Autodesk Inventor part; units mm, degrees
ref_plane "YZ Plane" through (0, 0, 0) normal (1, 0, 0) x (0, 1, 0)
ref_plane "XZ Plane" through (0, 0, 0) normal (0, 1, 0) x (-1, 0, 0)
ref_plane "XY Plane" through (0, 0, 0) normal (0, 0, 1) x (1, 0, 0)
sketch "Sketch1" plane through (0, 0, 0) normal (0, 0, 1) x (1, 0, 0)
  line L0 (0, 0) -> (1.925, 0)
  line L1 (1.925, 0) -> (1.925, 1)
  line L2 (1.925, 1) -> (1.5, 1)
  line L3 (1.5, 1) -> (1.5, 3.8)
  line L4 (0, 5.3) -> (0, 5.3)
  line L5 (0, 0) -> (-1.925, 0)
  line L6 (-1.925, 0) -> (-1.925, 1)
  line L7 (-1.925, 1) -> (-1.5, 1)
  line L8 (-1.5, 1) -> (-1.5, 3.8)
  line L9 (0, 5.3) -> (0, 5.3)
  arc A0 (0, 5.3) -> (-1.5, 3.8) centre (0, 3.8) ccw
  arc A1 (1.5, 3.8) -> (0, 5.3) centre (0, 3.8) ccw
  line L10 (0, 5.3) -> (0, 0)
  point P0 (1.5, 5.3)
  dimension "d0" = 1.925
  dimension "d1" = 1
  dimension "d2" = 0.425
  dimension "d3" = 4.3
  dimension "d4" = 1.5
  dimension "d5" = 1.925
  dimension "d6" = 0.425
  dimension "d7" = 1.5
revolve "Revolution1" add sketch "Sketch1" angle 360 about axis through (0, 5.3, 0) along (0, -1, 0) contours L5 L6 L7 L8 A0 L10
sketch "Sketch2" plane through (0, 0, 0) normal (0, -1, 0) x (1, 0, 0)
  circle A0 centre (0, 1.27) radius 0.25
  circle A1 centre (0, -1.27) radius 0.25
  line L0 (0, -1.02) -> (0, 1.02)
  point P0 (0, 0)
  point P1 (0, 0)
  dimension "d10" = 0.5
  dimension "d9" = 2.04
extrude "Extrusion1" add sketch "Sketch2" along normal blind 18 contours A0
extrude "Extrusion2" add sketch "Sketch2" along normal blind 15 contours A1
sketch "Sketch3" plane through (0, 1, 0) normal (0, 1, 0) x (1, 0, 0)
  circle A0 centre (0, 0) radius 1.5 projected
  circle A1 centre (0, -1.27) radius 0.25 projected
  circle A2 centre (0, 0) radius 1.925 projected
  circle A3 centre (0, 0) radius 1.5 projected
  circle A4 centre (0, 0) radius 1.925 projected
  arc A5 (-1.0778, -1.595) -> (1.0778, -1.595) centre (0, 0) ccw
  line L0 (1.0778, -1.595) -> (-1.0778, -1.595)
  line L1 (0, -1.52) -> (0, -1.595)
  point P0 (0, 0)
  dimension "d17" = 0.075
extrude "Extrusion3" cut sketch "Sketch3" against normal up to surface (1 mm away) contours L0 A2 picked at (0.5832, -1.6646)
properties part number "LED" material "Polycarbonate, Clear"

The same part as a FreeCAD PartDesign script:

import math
import FreeCAD as App
import Part
import Sketcher
Q = App.Units.Quantity

doc = App.newDocument("Part")
params = doc.addObject("Spreadsheet::Sheet", "Params")
for row, (alias, value) in enumerate([
    ("sketch1_radius", "1.5 mm"),
    ("sketch1_height", "1 mm"),
    ("revolution_angle", "360 deg"),
    ("sketch2_diameter", "0.5 mm"),
    ("pad1_length", "18 mm"),
    ("sketch3_diameter", "0.5 mm"),
    ("pad2_length", "15 mm"),
    ("pocket1_length", "1 mm"),
], start=1):
    params.set(f"A{row}", alias)
    params.set(f"B{row}", "=" + value)
    params.setAlias(f"B{row}", alias)

body = doc.addObject("PartDesign::Body", "Body")

# Sketch on XY plane
sketch1 = doc.addObject("Sketcher::SketchObject", "Sketch")
body.addObject(sketch1)
sketch1.AttachmentSupport = (doc.XY_Plane, [""])
sketch1.MapMode = "FlatFace"
sketch1.addGeometry([
    Part.LineSegment(App.Vector(-1.925, 0, 0), App.Vector(0, 0, 0)),  # 0
    Part.LineSegment(App.Vector(0, 0, 0), App.Vector(0, 5.3, 0)),  # 1
    Part.ArcOfCircle(Part.Circle(App.Vector(0, 3.8, 0), App.Vector(0, 0, 1), 1.5), math.radians(90), math.radians(180)),  # 2
    Part.LineSegment(App.Vector(-1.5, 3.8, 0), App.Vector(-1.5, 1, 0)),  # 3
    Part.LineSegment(App.Vector(-1.5, 1, 0), App.Vector(-1.925, 1, 0)),  # 4
    Part.LineSegment(App.Vector(-1.925, 1, 0), App.Vector(-1.925, 0, 0)),  # 5
], False)
sketch1.addConstraint([
    Sketcher.Constraint("Coincident", 0, 2, 1, 1),
    Sketcher.Constraint("Coincident", 1, 2, 2, 1),
    Sketcher.Constraint("Tangent", 2, 2, 3, 1),
    Sketcher.Constraint("Coincident", 3, 2, 4, 1),
    Sketcher.Constraint("Coincident", 4, 2, 5, 1),
    Sketcher.Constraint("Coincident", 5, 2, 0, 1),
    Sketcher.Constraint("Horizontal", 0),
    Sketcher.Constraint("Vertical", 1),
    Sketcher.Constraint("Vertical", 3),
    Sketcher.Constraint("Horizontal", 4),
    Sketcher.Constraint("Vertical", 5),
    Sketcher.Constraint("Coincident", 0, 2, -1, 1),
    Sketcher.Constraint("PointOnObject", 2, 3, -2),
    Sketcher.Constraint("Radius", 2, Q("1.5 mm")),
    Sketcher.Constraint("DistanceY", 5, 2, 5, 1, Q("1 mm")),
    Sketcher.Constraint("DistanceY", 3, 2, 1, 2, Q("4.3 mm")),
    Sketcher.Constraint("DistanceX", 0, 1, 0, 2, Q("1.925 mm")),
])
sketch1.setExpression("Constraints[13]", "Params.sketch1_radius")
sketch1.setExpression("Constraints[14]", "Params.sketch1_height")
revolution = doc.addObject("PartDesign::Revolution", "Revolution")
body.addObject(revolution)
revolution.Profile = sketch1
revolution.ReferenceAxis = (sketch1, ["V_Axis"])
revolution.setExpression("Angle", "Params.revolution_angle")

# Sketch on XZ plane
sketch2 = doc.addObject("Sketcher::SketchObject", "Sketch001")
body.addObject(sketch2)
sketch2.AttachmentSupport = (doc.XZ_Plane, [""])
sketch2.MapMode = "FlatFace"
sketch2.addGeometry(Part.Circle(App.Vector(0, 1.27, 0), App.Vector(0, 0, 1), 0.25), False)
sketch2.addConstraint([
    Sketcher.Constraint("PointOnObject", 0, 3, -2),
    Sketcher.Constraint("Diameter", 0, Q("0.5 mm")),
    Sketcher.Constraint("DistanceY", -1, 1, 0, 3, Q("1.27 mm")),
])
sketch2.setExpression("Constraints[1]", "Params.sketch2_diameter")
pad1 = doc.addObject("PartDesign::Pad", "Pad")
body.addObject(pad1)
pad1.Profile = sketch2
pad1.setExpression("Length", "Params.pad1_length")

# Sketch on XZ plane
sketch3 = doc.addObject("Sketcher::SketchObject", "Sketch002")
body.addObject(sketch3)
sketch3.AttachmentSupport = (doc.XZ_Plane, [""])
sketch3.MapMode = "FlatFace"
sketch3.addGeometry(Part.Circle(App.Vector(0, -1.27, 0), App.Vector(0, 0, 1), 0.25), False)
sketch3.addConstraint([
    Sketcher.Constraint("PointOnObject", 0, 3, -2),
    Sketcher.Constraint("Diameter", 0, Q("0.5 mm")),
    Sketcher.Constraint("DistanceY", 0, 3, -1, 1, Q("1.27 mm")),
])
sketch3.setExpression("Constraints[1]", "Params.sketch3_diameter")
pad2 = doc.addObject("PartDesign::Pad", "Pad001")
body.addObject(pad2)
pad2.Profile = sketch3
pad2.setExpression("Length", "Params.pad2_length")

# Sketch on XZ plane
sketch4 = doc.addObject("Sketcher::SketchObject", "Sketch003")
body.addObject(sketch4)
sketch4.AttachmentSupport = (doc.XZ_Plane, [""])
sketch4.MapMode = "FlatFace"
sketch4.AttachmentOffset = App.Placement(App.Vector(0, 0, -1), App.Rotation())
sketch4.addGeometry([
    Part.LineSegment(App.Vector(1.0778, 1.595, 0), App.Vector(-1.0778, 1.595, 0)),
    Part.ArcOfCircle(Part.Circle(App.Vector(0, 0, 0), App.Vector(0, 0, 1), 1.925), math.radians(55.951663), math.radians(124.048337)),
], False)
sketch4.addConstraint([
    Sketcher.Constraint("Coincident", 0, 1, 1, 1),
    Sketcher.Constraint("Coincident", 1, 2, 0, 2),
    Sketcher.Constraint("Horizontal", 0),
    Sketcher.Constraint("Coincident", 1, 3, -1, 1),
    Sketcher.Constraint("Radius", 1, Q("1.925 mm")),
    Sketcher.Constraint("DistanceX", 0, 2, 0, 1, Q("2.1556 mm")),
])
pocket1 = doc.addObject("PartDesign::Pocket", "Pocket")
body.addObject(pocket1)
pocket1.Profile = sketch4
pocket1.setExpression("Length", "Params.pocket1_length")
pocket1.Reversed = True

doc.recompute()
